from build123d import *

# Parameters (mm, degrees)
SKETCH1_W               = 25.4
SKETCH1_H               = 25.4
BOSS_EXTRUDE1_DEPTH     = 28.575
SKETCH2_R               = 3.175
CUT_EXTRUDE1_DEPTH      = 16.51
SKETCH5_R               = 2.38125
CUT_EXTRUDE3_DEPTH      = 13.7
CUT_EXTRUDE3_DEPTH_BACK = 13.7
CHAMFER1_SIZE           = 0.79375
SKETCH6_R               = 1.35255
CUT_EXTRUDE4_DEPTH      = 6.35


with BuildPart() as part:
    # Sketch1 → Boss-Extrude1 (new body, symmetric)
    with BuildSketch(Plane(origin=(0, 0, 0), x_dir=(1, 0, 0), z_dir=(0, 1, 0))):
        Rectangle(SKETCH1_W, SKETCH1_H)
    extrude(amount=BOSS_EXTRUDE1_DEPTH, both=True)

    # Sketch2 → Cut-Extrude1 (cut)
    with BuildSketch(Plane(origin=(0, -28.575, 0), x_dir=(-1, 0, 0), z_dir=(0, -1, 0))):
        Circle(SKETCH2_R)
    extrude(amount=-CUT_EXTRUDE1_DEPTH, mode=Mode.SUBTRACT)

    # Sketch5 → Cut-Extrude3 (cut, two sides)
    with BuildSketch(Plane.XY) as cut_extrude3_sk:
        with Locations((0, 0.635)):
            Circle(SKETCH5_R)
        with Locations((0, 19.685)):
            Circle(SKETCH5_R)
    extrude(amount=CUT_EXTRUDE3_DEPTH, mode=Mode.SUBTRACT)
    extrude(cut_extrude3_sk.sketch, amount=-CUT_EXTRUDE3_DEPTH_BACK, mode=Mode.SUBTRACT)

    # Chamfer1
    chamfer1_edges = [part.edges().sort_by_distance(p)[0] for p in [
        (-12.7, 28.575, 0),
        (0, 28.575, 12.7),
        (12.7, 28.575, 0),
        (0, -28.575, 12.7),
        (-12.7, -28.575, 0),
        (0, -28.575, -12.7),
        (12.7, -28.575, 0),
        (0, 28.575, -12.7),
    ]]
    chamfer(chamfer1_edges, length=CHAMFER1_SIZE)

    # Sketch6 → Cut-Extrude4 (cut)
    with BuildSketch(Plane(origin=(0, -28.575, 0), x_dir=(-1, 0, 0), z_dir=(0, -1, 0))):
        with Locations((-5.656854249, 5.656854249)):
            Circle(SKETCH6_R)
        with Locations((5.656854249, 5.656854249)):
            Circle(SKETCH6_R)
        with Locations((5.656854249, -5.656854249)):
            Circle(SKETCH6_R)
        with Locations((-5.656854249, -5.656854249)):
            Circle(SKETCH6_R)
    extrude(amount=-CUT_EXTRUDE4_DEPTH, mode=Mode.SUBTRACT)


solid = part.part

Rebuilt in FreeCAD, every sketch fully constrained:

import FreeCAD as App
import Part
import Sketcher

V = App.Vector
Q = App.Units.Quantity


def edges_at(feature, points):
    """Names of the edges that pass closest to the given points."""
    edges = feature.Shape.Edges
    near = lambda p: min(range(len(edges)), key=lambda i: edges[i].distToShape(Part.Vertex(*p))[0])
    return sorted({f"Edge{near(p) + 1}" for p in points})


def add_polygon(sketch, points):
    """Adds a closed chain of lines whose ends are joined by coincident constraints."""
    first, n = sketch.GeometryCount, len(points)
    for a, b in zip(points, points[1:] + points[:1]):
        sketch.addGeometry(Part.LineSegment(App.Vector(*a, 0), App.Vector(*b, 0)), False)
    for i in range(n):
        sketch.addConstraint(Sketcher.Constraint("Coincident", first + i, 2, first + (i + 1) % n, 1))

doc = App.newDocument("Part")
body = doc.addObject("PartDesign::Body", "Body")

sketch1 = body.newObject("Sketcher::SketchObject", "Sketch")
sketch1.AttachmentSupport = (doc.getObject("XZ_Plane"), [""])
sketch1.MapMode = "FlatFace"
add_polygon(sketch1, [(-13, -13), (-13, 13), (13, 13), (13, -13)])
sketch1.addConstraint(Sketcher.Constraint("Vertical", 0))
sketch1.addConstraint(Sketcher.Constraint("Horizontal", 1))
sketch1.addConstraint(Sketcher.Constraint("Vertical", 2))
sketch1.addConstraint(Sketcher.Constraint("Horizontal", 3))
sketch1.addConstraint(Sketcher.Constraint("Symmetric", 0, 2, 2, 2, -1, 1))
sketch1.addConstraint(Sketcher.Constraint("Equal", 3, 0))
sketch1.addConstraint(Sketcher.Constraint("DistanceX", 1, 1, 1, 2, Q("1 in")))
pad1 = body.newObject("PartDesign::Pad", "Pad")
pad1.Profile = sketch1
pad1.Length = Q("2.25 in")
pad1.Midplane = True

sketch2 = body.newObject("Sketcher::SketchObject", "Sketch001")
sketch2.AttachmentSupport = (doc.getObject("XZ_Plane"), [""])
sketch2.MapMode = "FlatFace"
sketch2.AttachmentOffset = App.Placement(V(0, 0, 1.125 * 25.4), App.Rotation())
sketch2.addGeometry(Part.Circle(V(0, 0, 0), V(0, 0, 1), 3.2), False)
sketch2.addConstraint(Sketcher.Constraint("Coincident", 0, 3, -1, 1))
sketch2.addConstraint(Sketcher.Constraint("Diameter", 0, Q("0.25 in")))
pocket1 = body.newObject("PartDesign::Pocket", "Pocket")
pocket1.Profile = sketch2
pocket1.Length = Q("0.65 in")

sketch3 = body.newObject("Sketcher::SketchObject", "Sketch002")
sketch3.AttachmentSupport = (doc.getObject("XY_Plane"), [""])
sketch3.MapMode = "FlatFace"
sketch3.addGeometry(Part.Circle(V(0, 0.6, 0), V(0, 0, 1), 2.4), False)
sketch3.addGeometry(Part.Circle(V(0, 19.7, 0), V(0, 0, 1), 2.4), False)
sketch3.addConstraint(Sketcher.Constraint("Equal", 0, 1))
sketch3.addConstraint(Sketcher.Constraint("PointOnObject", 0, 3, -2))
sketch3.addConstraint(Sketcher.Constraint("PointOnObject", 1, 3, -2))
sketch3.addConstraint(Sketcher.Constraint("Diameter", 0, Q("0.1875 in")))
sketch3.addConstraint(Sketcher.Constraint("DistanceY", 0, 3, 1, 3, Q("0.75 in")))
sketch3.addConstraint(Sketcher.Constraint("DistanceY", -1, 1, 0, 3, Q("0.025 in")))
pocket2 = body.newObject("PartDesign::Pocket", "Pocket001")
pocket2.Profile = sketch3
pocket2.Type = "ThroughAll"
pocket2.Midplane = True
doc.recompute()

chamfer = body.newObject("PartDesign::Chamfer", "Chamfer")
chamfer.Base = (pocket2, edges_at(pocket2, [
    (-12.7, 28.575, 0),
    (0, 28.575, 12.7),
    (12.7, 28.575, 0),
    (0, -28.575, 12.7),
    (-12.7, -28.575, 0),
    (0, -28.575, -12.7),
    (12.7, -28.575, 0),
    (0, 28.575, -12.7),
]))
chamfer.Size = Q("0.03125 in")

sketch4 = body.newObject("Sketcher::SketchObject", "Sketch003")
sketch4.AttachmentSupport = (doc.getObject("XZ_Plane"), [""])
sketch4.MapMode = "FlatFace"
sketch4.AttachmentOffset = App.Placement(V(0, 0, 1.125 * 25.4), App.Rotation())
sketch4.addGeometry(Part.Circle(V(5.7, -5.7, 0), V(0, 0, 1), 1.4), False)
sketch4.addGeometry(Part.Circle(V(-5.7, -5.7, 0), V(0, 0, 1), 1.4), False)
sketch4.addGeometry(Part.Circle(V(-5.7, 5.7, 0), V(0, 0, 1), 1.4), False)
sketch4.addGeometry(Part.Circle(V(5.7, 5.7, 0), V(0, 0, 1), 1.4), False)
sketch4.addConstraint(Sketcher.Constraint("Equal", 0, 1))
sketch4.addConstraint(Sketcher.Constraint("Equal", 1, 2))
sketch4.addConstraint(Sketcher.Constraint("Equal", 2, 3))
sketch4.addConstraint(Sketcher.Constraint("Symmetric", 0, 3, 2, 3, -1, 1))
sketch4.addConstraint(Sketcher.Constraint("Symmetric", 1, 3, 3, 3, -1, 1))
sketch4.addConstraint(Sketcher.Constraint("Symmetric", 0, 3, 1, 3, -2))
sketch4.addConstraint(Sketcher.Constraint("Diameter", 0, Q("0.1065 in")))
sketch4.addConstraint(Sketcher.Constraint("DistanceX", 1, 3, 0, 3, 11.313708))
sketch4.addConstraint(Sketcher.Constraint("DistanceY", 1, 3, 2, 3, 11.313708))
pocket3 = body.newObject("PartDesign::Pocket", "Pocket002")
pocket3.Profile = sketch4
pocket3.Length = Q("0.25 in")

doc.recompute()
